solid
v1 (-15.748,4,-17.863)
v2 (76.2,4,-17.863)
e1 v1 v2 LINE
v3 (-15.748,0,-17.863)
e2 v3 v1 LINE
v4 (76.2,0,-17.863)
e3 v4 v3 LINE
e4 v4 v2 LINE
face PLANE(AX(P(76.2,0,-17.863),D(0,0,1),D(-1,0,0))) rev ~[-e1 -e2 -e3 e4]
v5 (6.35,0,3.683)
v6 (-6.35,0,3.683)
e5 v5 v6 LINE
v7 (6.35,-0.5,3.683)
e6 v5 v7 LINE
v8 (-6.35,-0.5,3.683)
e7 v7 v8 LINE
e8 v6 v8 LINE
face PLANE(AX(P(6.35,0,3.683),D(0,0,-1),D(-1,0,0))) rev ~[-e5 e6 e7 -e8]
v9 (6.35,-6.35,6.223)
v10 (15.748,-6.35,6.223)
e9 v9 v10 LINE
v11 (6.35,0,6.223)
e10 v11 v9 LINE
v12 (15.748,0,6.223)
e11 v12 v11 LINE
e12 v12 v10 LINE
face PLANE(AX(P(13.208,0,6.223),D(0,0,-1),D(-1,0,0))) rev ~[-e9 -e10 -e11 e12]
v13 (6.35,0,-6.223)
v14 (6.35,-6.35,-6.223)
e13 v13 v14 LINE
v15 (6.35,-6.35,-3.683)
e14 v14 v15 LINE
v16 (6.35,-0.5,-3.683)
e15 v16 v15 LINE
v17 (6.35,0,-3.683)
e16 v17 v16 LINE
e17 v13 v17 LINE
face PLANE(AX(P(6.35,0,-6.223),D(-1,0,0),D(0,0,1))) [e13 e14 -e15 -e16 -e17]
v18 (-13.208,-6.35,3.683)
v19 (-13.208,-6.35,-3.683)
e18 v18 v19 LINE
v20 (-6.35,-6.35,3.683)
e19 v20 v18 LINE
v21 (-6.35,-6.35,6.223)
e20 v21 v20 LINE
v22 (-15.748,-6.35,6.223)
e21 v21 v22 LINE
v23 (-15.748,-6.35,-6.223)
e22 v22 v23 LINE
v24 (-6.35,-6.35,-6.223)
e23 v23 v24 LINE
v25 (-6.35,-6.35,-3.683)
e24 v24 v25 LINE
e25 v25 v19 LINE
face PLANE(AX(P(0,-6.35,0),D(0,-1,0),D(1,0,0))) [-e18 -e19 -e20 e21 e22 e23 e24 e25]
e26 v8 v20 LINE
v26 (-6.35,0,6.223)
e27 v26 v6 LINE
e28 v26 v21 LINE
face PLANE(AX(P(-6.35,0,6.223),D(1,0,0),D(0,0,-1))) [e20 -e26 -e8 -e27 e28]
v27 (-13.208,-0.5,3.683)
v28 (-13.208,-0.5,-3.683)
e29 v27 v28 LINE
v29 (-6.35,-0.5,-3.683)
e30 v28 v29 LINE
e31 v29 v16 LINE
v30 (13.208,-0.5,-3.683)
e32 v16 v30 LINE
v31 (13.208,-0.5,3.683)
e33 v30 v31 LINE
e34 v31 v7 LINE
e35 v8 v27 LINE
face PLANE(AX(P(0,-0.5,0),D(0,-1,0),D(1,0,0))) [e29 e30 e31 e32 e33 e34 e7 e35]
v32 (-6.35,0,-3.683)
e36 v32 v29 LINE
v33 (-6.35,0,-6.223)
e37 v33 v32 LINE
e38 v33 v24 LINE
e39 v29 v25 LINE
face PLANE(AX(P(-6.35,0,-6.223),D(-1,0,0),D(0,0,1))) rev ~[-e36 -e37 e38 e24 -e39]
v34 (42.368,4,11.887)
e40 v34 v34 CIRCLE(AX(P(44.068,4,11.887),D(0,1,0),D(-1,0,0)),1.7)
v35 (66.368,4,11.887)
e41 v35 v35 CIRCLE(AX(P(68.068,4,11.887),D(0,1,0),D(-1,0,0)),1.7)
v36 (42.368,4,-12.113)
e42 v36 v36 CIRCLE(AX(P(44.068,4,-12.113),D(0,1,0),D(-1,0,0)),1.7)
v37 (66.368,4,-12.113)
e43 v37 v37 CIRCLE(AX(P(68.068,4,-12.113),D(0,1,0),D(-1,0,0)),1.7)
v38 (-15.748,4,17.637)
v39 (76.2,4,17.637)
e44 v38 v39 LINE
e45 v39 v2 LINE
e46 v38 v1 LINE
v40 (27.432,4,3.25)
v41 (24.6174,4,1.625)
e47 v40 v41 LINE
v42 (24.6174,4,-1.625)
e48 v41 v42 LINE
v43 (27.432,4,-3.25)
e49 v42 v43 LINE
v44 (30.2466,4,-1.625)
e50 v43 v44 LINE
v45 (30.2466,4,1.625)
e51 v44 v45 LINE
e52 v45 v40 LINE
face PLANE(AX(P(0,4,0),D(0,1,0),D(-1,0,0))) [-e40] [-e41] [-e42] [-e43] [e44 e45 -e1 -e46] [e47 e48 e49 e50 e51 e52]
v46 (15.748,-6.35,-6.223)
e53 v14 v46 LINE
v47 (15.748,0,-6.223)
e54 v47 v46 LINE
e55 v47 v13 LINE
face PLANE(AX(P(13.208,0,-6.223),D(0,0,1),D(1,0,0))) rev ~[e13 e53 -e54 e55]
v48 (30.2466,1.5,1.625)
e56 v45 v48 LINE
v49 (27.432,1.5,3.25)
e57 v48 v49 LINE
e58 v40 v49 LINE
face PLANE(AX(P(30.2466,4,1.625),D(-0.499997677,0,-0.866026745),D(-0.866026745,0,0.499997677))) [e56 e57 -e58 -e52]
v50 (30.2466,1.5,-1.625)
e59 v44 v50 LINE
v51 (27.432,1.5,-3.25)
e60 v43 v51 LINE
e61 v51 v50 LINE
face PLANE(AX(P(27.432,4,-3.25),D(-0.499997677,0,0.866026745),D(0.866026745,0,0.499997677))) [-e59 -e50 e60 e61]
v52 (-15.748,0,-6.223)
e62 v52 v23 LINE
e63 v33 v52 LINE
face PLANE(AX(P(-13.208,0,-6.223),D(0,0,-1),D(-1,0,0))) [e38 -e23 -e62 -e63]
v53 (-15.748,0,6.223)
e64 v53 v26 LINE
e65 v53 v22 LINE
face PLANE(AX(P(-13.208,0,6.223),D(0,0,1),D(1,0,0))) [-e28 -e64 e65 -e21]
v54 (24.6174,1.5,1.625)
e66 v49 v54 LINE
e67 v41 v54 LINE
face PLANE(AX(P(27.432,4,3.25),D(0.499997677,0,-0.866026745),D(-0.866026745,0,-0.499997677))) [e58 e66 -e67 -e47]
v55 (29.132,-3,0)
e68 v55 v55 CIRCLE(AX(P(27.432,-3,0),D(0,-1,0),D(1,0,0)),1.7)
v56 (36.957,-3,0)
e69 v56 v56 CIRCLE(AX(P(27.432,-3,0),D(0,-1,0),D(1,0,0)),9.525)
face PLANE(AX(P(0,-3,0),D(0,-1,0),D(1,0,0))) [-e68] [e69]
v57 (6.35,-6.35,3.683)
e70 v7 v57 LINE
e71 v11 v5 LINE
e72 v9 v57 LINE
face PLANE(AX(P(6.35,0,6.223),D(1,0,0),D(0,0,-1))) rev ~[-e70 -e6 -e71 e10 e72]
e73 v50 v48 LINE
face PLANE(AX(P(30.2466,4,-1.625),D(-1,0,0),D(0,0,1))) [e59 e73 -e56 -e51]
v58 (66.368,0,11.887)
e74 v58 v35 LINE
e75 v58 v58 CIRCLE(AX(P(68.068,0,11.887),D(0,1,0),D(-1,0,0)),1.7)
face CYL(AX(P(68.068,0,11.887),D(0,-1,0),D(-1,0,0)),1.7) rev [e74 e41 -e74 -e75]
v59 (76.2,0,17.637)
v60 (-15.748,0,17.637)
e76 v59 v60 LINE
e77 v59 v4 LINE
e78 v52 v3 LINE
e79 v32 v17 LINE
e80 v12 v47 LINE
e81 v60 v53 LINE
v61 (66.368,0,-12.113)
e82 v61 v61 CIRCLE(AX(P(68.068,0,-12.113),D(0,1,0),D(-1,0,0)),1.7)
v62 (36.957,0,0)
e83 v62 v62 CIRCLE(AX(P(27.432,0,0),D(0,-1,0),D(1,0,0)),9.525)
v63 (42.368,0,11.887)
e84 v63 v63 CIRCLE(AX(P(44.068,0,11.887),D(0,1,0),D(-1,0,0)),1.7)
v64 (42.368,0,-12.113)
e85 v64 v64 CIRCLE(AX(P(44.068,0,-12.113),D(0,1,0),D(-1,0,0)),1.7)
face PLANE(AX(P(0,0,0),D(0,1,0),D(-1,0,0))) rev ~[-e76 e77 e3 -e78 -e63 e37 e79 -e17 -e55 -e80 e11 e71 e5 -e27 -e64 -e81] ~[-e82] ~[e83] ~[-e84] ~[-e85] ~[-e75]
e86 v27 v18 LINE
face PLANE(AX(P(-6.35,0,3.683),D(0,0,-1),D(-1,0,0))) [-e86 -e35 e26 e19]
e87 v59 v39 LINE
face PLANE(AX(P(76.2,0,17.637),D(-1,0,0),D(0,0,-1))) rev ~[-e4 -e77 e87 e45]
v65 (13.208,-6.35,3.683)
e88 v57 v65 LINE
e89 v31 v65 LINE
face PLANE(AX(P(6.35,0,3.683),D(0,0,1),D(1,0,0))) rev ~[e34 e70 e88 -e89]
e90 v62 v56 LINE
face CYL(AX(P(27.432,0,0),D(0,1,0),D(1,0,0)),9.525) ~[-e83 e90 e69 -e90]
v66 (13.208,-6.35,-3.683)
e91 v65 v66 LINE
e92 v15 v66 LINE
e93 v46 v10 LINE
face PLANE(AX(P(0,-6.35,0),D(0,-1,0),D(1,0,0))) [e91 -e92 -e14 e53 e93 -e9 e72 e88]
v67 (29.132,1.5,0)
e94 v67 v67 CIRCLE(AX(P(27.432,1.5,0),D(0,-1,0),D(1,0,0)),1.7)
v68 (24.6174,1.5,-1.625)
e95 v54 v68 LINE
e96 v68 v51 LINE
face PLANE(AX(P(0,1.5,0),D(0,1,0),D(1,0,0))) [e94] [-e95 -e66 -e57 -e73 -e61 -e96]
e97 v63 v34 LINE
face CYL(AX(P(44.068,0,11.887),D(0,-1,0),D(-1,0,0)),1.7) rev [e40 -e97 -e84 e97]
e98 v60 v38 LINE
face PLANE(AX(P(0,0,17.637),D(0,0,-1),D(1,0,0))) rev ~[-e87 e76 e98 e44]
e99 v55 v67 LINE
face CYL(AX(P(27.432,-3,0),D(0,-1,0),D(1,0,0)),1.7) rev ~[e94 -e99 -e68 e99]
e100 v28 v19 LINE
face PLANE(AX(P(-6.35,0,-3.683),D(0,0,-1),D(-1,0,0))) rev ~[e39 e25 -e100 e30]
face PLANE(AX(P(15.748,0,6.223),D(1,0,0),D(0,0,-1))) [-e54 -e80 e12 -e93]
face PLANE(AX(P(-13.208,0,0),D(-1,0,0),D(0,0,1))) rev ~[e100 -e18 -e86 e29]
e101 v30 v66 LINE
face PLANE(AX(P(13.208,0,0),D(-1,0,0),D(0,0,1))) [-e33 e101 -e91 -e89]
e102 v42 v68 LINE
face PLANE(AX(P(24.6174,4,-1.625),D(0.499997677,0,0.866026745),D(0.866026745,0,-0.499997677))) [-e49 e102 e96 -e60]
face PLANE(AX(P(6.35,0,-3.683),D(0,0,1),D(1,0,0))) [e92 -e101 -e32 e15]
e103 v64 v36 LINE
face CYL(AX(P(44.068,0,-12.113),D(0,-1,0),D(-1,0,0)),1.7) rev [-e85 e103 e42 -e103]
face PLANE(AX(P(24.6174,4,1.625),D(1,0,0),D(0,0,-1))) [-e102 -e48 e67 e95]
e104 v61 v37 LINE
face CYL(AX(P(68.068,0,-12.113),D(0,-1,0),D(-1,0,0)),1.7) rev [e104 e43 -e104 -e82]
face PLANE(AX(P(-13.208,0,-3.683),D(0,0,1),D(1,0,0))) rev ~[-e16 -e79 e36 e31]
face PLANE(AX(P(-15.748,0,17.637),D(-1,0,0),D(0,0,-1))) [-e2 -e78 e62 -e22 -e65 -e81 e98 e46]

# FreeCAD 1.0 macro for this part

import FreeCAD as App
import Part
import Sketcher
Q = App.Units.Quantity

doc = App.newDocument("Part")
body = doc.addObject("PartDesign::Body", "Body")

# Sketch on XZ plane
sketch1 = body.newObject("Sketcher::SketchObject", "Sketch")
sketch1.AttachmentSupport = (doc.getObject("XZ_Plane"), [""])
sketch1.MapMode = "FlatFace"
sketch1.addGeometry([
    Part.LineSegment(App.Vector(76.2, -17.9, 0), App.Vector(-15.7, -17.9, 0)),  # 0
    Part.LineSegment(App.Vector(-15.7, -17.9, 0), App.Vector(-15.7, 17.6, 0)),  # 1
    Part.LineSegment(App.Vector(-15.7, 17.6, 0), App.Vector(76.2, 17.6, 0)),  # 2
    Part.LineSegment(App.Vector(76.2, 17.6, 0), App.Vector(76.2, -17.9, 0)),  # 3
    Part.Circle(App.Vector(68.1, -12.1, 0), App.Vector(0, 0, 1), 1.7),  # 4
    Part.Circle(App.Vector(44.1, -12.1, 0), App.Vector(0, 0, 1), 1.7),  # 5
    Part.Circle(App.Vector(68.1, 11.9, 0), App.Vector(0, 0, 1), 1.7),  # 6
    Part.Circle(App.Vector(44.1, 11.9, 0), App.Vector(0, 0, 1), 1.7),  # 7
], False)
sketch1.addConstraint([
    Sketcher.Constraint("Coincident", 0, 2, 1, 1),
    Sketcher.Constraint("Coincident", 1, 2, 2, 1),
    Sketcher.Constraint("Coincident", 2, 2, 3, 1),
    Sketcher.Constraint("Coincident", 3, 2, 0, 1),
    Sketcher.Constraint("Horizontal", 0),
    Sketcher.Constraint("Vertical", 1),
    Sketcher.Constraint("Horizontal", 2),
    Sketcher.Constraint("Vertical", 3),
    Sketcher.Constraint("Equal", 4, 5),
    Sketcher.Constraint("Equal", 5, 6),
    Sketcher.Constraint("Equal", 6, 7),
    Sketcher.Constraint("Horizontal", 4, 3, 5, 3),
    Sketcher.Constraint("Horizontal", 6, 3, 7, 3),
    Sketcher.Constraint("Vertical", 4, 3, 6, 3),
    Sketcher.Constraint("Vertical", 5, 3, 7, 3),
    Sketcher.Constraint("DistanceX", -1, 1, 2, 2, Q("3 in")),
    Sketcher.Constraint("Diameter", 4, 3.4),
    Sketcher.Constraint("DistanceX", 0, 2, -1, 1, Q("0.62 in")),
    Sketcher.Constraint("DistanceY", 1, 1, 1, 2, 35.5),
    Sketcher.Constraint("DistanceX", -1, 1, 5, 3, 44.068),
    Sketcher.Constraint("DistanceY", -1, 1, 1, 2, 17.637),
    Sketcher.Constraint("DistanceX", 5, 3, 4, 3, 24.0),
    Sketcher.Constraint("DistanceY", 4, 3, 6, 3, 24.0),
    Sketcher.Constraint("DistanceY", 0, 2, 5, 3, 5.75),
])
pad1 = body.newObject("PartDesign::Pad", "Pad")
pad1.Profile = sketch1
pad1.Length = 4
pad1.Reversed = True

# Sketch on XZ plane
sketch2 = body.newObject("Sketcher::SketchObject", "Sketch001")
sketch2.AttachmentSupport = (doc.getObject("XZ_Plane"), [""])
sketch2.MapMode = "FlatFace"
sketch2.addGeometry([
    Part.LineSegment(App.Vector(-13.2, 3.7, 0), App.Vector(-6.3, 3.7, 0)),  # 0
    Part.LineSegment(App.Vector(-6.3, 3.7, 0), App.Vector(-6.3, 6.2, 0)),  # 1
    Part.LineSegment(App.Vector(-6.3, 6.2, 0), App.Vector(-15.7, 6.2, 0)),  # 2
    Part.LineSegment(App.Vector(-15.7, 6.2, 0), App.Vector(-15.7, -6.2, 0)),  # 3
    Part.LineSegment(App.Vector(-15.7, -6.2, 0), App.Vector(-6.3, -6.2, 0)),  # 4
    Part.LineSegment(App.Vector(-6.3, -6.2, 0), App.Vector(-6.3, -3.7, 0)),  # 5
    Part.LineSegment(App.Vector(-6.3, -3.7, 0), App.Vector(-13.2, -3.7, 0)),  # 6
    Part.LineSegment(App.Vector(-13.2, -3.7, 0), App.Vector(-13.2, 3.7, 0)),  # 7
    Part.LineSegment(App.Vector(6.3, 6.2, 0), App.Vector(6.3, 3.7, 0)),  # 8
    Part.LineSegment(App.Vector(6.3, 3.7, 0), App.Vector(13.2, 3.7, 0)),  # 9
    Part.LineSegment(App.Vector(13.2, 3.7, 0), App.Vector(13.2, -3.7, 0)),  # 10
    Part.LineSegment(App.Vector(13.2, -3.7, 0), App.Vector(6.3, -3.7, 0)),  # 11
    Part.LineSegment(App.Vector(6.3, -3.7, 0), App.Vector(6.3, -6.2, 0)),  # 12
    Part.LineSegment(App.Vector(6.3, -6.2, 0), App.Vector(15.7, -6.2, 0)),  # 13
    Part.LineSegment(App.Vector(15.7, -6.2, 0), App.Vector(15.7, 6.2, 0)),  # 14
    Part.LineSegment(App.Vector(15.7, 6.2, 0), App.Vector(6.3, 6.2, 0)),  # 15
], False)
sketch2.addConstraint([
    Sketcher.Constraint("Coincident", 0, 2, 1, 1),
    Sketcher.Constraint("Coincident", 1, 2, 2, 1),
    Sketcher.Constraint("Coincident", 2, 2, 3, 1),
    Sketcher.Constraint("Coincident", 3, 2, 4, 1),
    Sketcher.Constraint("Coincident", 4, 2, 5, 1),
    Sketcher.Constraint("Coincident", 5, 2, 6, 1),
    Sketcher.Constraint("Coincident", 6, 2, 7, 1),
    Sketcher.Constraint("Coincident", 7, 2, 0, 1),
    Sketcher.Constraint("Coincident", 8, 2, 9, 1),
    Sketcher.Constraint("Coincident", 9, 2, 10, 1),
    Sketcher.Constraint("Coincident", 10, 2, 11, 1),
    Sketcher.Constraint("Coincident", 11, 2, 12, 1),
    Sketcher.Constraint("Coincident", 12, 2, 13, 1),
    Sketcher.Constraint("Coincident", 13, 2, 14, 1),
    Sketcher.Constraint("Coincident", 14, 2, 15, 1),
    Sketcher.Constraint("Coincident", 15, 2, 8, 1),
    Sketcher.Constraint("Horizontal", 0),
    Sketcher.Constraint("Vertical", 1),
    Sketcher.Constraint("Horizontal", 2),
    Sketcher.Constraint("Vertical", 3),
    Sketcher.Constraint("Horizontal", 4),
    Sketcher.Constraint("Vertical", 5),
    Sketcher.Constraint("Horizontal", 6),
    Sketcher.Constraint("Vertical", 7),
    Sketcher.Constraint("Vertical", 8),
    Sketcher.Constraint("Horizontal", 9),
    Sketcher.Constraint("Vertical", 10),
    Sketcher.Constraint("Horizontal", 11),
    Sketcher.Constraint("Vertical", 12),
    Sketcher.Constraint("Horizontal", 13),
    Sketcher.Constraint("Vertical", 14),
    Sketcher.Constraint("Horizontal", 15),
    Sketcher.Constraint("Symmetric", 5, 2, 8, 2, -1, 1),
    Sketcher.Constraint("Symmetric", 7, 2, 10, 2, -1, 1),
    Sketcher.Constraint("Symmetric", 1, 2, 12, 2, -1, 1),
    Sketcher.Constraint("Symmetric", 3, 2, 14, 2, -1, 1),
    Sketcher.Constraint("Symmetric", 0, 2, 8, 2, -2),
    Sketcher.Constraint("Horizontal", 4, 2, 12, 2),
    Sketcher.Constraint("DistanceY", 1, 1, 1, 2, Q("0.1 in")),
    Sketcher.Constraint("DistanceX", 0, 1, 0, 2, Q("0.27 in")),
    Sketcher.Constraint("DistanceX", 3, 2, 6, 2, Q("0.1 in")),
    Sketcher.Constraint("DistanceX", 0, 2, 8, 2, Q("0.5 in")),
    Sketcher.Constraint("DistanceY", -1, 1, 1, 2, Q("0.245 in")),
])
pad2 = body.newObject("PartDesign::Pad", "Pad001")
pad2.Profile = sketch2
pad2.Length = Q("0.25 in")

# Sketch on XZ plane
sketch3 = body.newObject("Sketcher::SketchObject", "Sketch002")
sketch3.AttachmentSupport = (doc.getObject("XZ_Plane"), [""])
sketch3.MapMode = "FlatFace"
sketch3.addGeometry(Part.Circle(App.Vector(27, 0, 0), App.Vector(0, 0, 1), 10), False)
sketch3.addConstraint([
    Sketcher.Constraint("PointOnObject", 0, 3, -1),
    Sketcher.Constraint("Diameter", 0, Q("0.75 in")),
    Sketcher.Constraint("DistanceX", -1, 1, 0, 3, Q("1.08 in")),
])
pad3 = body.newObject("PartDesign::Pad", "Pad002")
pad3.Profile = sketch3
pad3.Length = Q("0.1181102 in")

# Sketch on XZ plane
sketch4 = body.newObject("Sketcher::SketchObject", "Sketch003")
sketch4.AttachmentSupport = (doc.getObject("XZ_Plane"), [""])
sketch4.MapMode = "FlatFace"
sketch4.AttachmentOffset = App.Placement(App.Vector(0, 0, 0.1181102 * 25.4), App.Rotation())
sketch4.addGeometry(Part.Circle(App.Vector(27.4, 0, 0), App.Vector(0, 0, 1), 1.7), False)
sketch4.addConstraint([
    Sketcher.Constraint("PointOnObject", 0, 3, -1),
    Sketcher.Constraint("Diameter", 0, 3.4),
    Sketcher.Constraint("DistanceX", -1, 1, 0, 3, Q("1.08 in")),
])
pocket1 = body.newObject("PartDesign::Pocket", "Pocket")
pocket1.Profile = sketch4
pocket1.Type = "ThroughAll"

# Sketch on XZ plane
sketch5 = body.newObject("Sketcher::SketchObject", "Sketch004")
sketch5.AttachmentSupport = (doc.getObject("XZ_Plane"), [""])
sketch5.MapMode = "FlatFace"
sketch5.AttachmentOffset = App.Placement(App.Vector(0, 0, -4), App.Rotation())
sketch5.addGeometry([
    Part.LineSegment(App.Vector(30.2, -1.6, 0), App.Vector(27.4, -3.2, 0)),  # 0
    Part.LineSegment(App.Vector(27.4, -3.2, 0), App.Vector(24.6, -1.6, 0)),  # 1
    Part.LineSegment(App.Vector(24.6, -1.6, 0), App.Vector(24.6, 1.6, 0)),  # 2
    Part.LineSegment(App.Vector(24.6, 1.6, 0), App.Vector(27.4, 3.2, 0)),  # 3
    Part.LineSegment(App.Vector(27.4, 3.2, 0), App.Vector(30.2, 1.6, 0)),  # 4
    Part.LineSegment(App.Vector(30.2, 1.6, 0), App.Vector(30.2, -1.6, 0)),  # 5
], False)
sketch5.addConstraint([
    Sketcher.Constraint("Coincident", 0, 2, 1, 1),
    Sketcher.Constraint("Coincident", 1, 2, 2, 1),
    Sketcher.Constraint("Coincident", 2, 2, 3, 1),
    Sketcher.Constraint("Coincident", 3, 2, 4, 1),
    Sketcher.Constraint("Coincident", 4, 2, 5, 1),
    Sketcher.Constraint("Coincident", 5, 2, 0, 1),
    Sketcher.Constraint("Vertical", 2),
    Sketcher.Constraint("Vertical", 5),
    Sketcher.Constraint("Symmetric", 0, 2, 3, 2, -1),
    Sketcher.Constraint("Parallel", 0, 3),
    Sketcher.Constraint("Parallel", 1, 4),
    Sketcher.Constraint("Horizontal", 2, 2, 4, 2),
    Sketcher.Constraint("Horizontal", 1, 2, 5, 2),
    Sketcher.Constraint("Angle", 0, Q("-150.0002 deg")),
    Sketcher.Constraint("DistanceY", 0, 2, 3, 2, Q("0.2559 in")),
    Sketcher.Constraint("DistanceX", -1, 1, 0, 2, Q("1.08 in")),
    Sketcher.Constraint("DistanceY", 2, 1, 2, 2, 3.25),
])
pocket2 = body.newObject("PartDesign::Pocket", "Pocket001")
pocket2.Profile = sketch5
pocket2.Length = 2.5
pocket2.Reversed = True

# Sketch on XZ plane
sketch6 = body.newObject("Sketcher::SketchObject", "Sketch005")
sketch6.AttachmentSupport = (doc.getObject("XZ_Plane"), [""])
sketch6.MapMode = "FlatFace"
sketch6.addGeometry([
    Part.LineSegment(App.Vector(13, 4, 0), App.Vector(-13, 4, 0)),
    Part.LineSegment(App.Vector(-13, 4, 0), App.Vector(-13, -4, 0)),
    Part.LineSegment(App.Vector(-13, -4, 0), App.Vector(13, -4, 0)),
    Part.LineSegment(App.Vector(13, -4, 0), App.Vector(13, 4, 0)),
], False)
sketch6.addConstraint([
    Sketcher.Constraint("Coincident", 0, 2, 1, 1),
    Sketcher.Constraint("Coincident", 1, 2, 2, 1),
    Sketcher.Constraint("Coincident", 2, 2, 3, 1),
    Sketcher.Constraint("Coincident", 3, 2, 0, 1),
    Sketcher.Constraint("Horizontal", 0),
    Sketcher.Constraint("Vertical", 1),
    Sketcher.Constraint("Horizontal", 2),
    Sketcher.Constraint("Vertical", 3),
    Sketcher.Constraint("Symmetric", 0, 2, 2, 2, -1, 1),
    Sketcher.Constraint("DistanceX", 0, 2, 0, 1, Q("1.04 in")),
    Sketcher.Constraint("DistanceY", 1, 2, 1, 1, Q("0.29 in")),
])
pad4 = body.newObject("PartDesign::Pad", "Pad003")
pad4.Profile = sketch6
pad4.Length = 0.5

doc.recompute()
